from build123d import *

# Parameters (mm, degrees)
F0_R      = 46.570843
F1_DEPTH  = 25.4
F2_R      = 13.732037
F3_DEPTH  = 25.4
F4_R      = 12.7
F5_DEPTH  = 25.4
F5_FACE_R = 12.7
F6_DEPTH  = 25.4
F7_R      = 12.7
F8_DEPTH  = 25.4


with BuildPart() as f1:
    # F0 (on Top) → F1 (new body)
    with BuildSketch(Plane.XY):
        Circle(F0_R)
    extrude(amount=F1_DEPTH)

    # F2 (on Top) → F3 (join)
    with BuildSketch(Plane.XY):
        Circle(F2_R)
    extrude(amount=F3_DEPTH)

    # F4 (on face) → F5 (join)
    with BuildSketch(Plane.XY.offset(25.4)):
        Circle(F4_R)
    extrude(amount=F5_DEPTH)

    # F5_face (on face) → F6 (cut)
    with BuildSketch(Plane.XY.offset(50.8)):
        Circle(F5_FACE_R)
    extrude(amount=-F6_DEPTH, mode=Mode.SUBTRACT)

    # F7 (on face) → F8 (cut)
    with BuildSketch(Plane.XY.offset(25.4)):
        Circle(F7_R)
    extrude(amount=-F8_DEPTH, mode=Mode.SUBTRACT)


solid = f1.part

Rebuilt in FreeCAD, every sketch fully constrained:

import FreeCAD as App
import Part
import Sketcher
Q = App.Units.Quantity

doc = App.newDocument("Part")
body = doc.addObject("PartDesign::Body", "Body")

sketch1 = doc.addObject("Sketcher::SketchObject", "Sketch")
body.addObject(sketch1)
sketch1.AttachmentSupport = (doc.XY_Plane, [""])
sketch1.MapMode = "FlatFace"
sketch1.addGeometry(Part.Circle(App.Vector(0, 0, 0), App.Vector(0, 0, 1), 47), False)
sketch1.addConstraint(Sketcher.Constraint("Coincident", 0, 3, -1, 1))
sketch1.addConstraint(Sketcher.Constraint("Diameter", 0, 93.141686))
pad1 = doc.addObject("PartDesign::Pad", "Pad")
body.addObject(pad1)
pad1.Profile = sketch1
pad1.Length = Q("1 in")

sketch2 = doc.addObject("Sketcher::SketchObject", "Sketch001")
body.addObject(sketch2)
sketch2.AttachmentSupport = (doc.XY_Plane, [""])
sketch2.MapMode = "FlatFace"
sketch2.addGeometry(Part.Circle(App.Vector(0, 0, 0), App.Vector(0, 0, 1), 14), False)
sketch2.addConstraint(Sketcher.Constraint("Coincident", 0, 3, -1, 1))
sketch2.addConstraint(Sketcher.Constraint("Diameter", 0, 27.464074))
pad2 = doc.addObject("PartDesign::Pad", "Pad001")
body.addObject(pad2)
pad2.Profile = sketch2
pad2.Length = Q("1 in")

sketch3 = doc.addObject("Sketcher::SketchObject", "Sketch002")
body.addObject(sketch3)
sketch3.AttachmentSupport = (doc.XY_Plane, [""])
sketch3.MapMode = "FlatFace"
sketch3.AttachmentOffset = App.Placement(App.Vector(0, 0, 1 * 25.4), App.Rotation())
sketch3.addGeometry(Part.Circle(App.Vector(0, 0, 0), App.Vector(0, 0, 1), 13), False)
sketch3.addConstraint(Sketcher.Constraint("Coincident", 0, 3, -1, 1))
sketch3.addConstraint(Sketcher.Constraint("Diameter", 0, Q("1 in")))
pad3 = doc.addObject("PartDesign::Pad", "Pad002")
body.addObject(pad3)
pad3.Profile = sketch3
pad3.Length = Q("1 in")

sketch4 = doc.addObject("Sketcher::SketchObject", "Sketch003")
body.addObject(sketch4)
sketch4.AttachmentSupport = (doc.XY_Plane, [""])
sketch4.MapMode = "FlatFace"
sketch4.AttachmentOffset = App.Placement(App.Vector(0, 0, 2 * 25.4), App.Rotation())
sketch4.addGeometry(Part.Circle(App.Vector(0, 0, 0), App.Vector(0, 0, 1), 13), False)
sketch4.addConstraint(Sketcher.Constraint("Coincident", 0, 3, -1, 1))
sketch4.addConstraint(Sketcher.Constraint("Diameter", 0, Q("1 in")))
pocket1 = doc.addObject("PartDesign::Pocket", "Pocket")
body.addObject(pocket1)
pocket1.Profile = sketch4
pocket1.Length = Q("1 in")

sketch5 = doc.addObject("Sketcher::SketchObject", "Sketch004")
body.addObject(sketch5)
sketch5.AttachmentSupport = (doc.XY_Plane, [""])
sketch5.MapMode = "FlatFace"
sketch5.AttachmentOffset = App.Placement(App.Vector(0, 0, 1 * 25.4), App.Rotation())
sketch5.addGeometry(Part.Circle(App.Vector(0, 0, 0), App.Vector(0, 0, 1), 13), False)
sketch5.addConstraint(Sketcher.Constraint("Coincident", 0, 3, -1, 1))
sketch5.addConstraint(Sketcher.Constraint("Diameter", 0, Q("1 in")))
pocket2 = doc.addObject("PartDesign::Pocket", "Pocket001")
body.addObject(pocket2)
pocket2.Profile = sketch5
pocket2.Length = Q("1 in")

doc.recompute()
